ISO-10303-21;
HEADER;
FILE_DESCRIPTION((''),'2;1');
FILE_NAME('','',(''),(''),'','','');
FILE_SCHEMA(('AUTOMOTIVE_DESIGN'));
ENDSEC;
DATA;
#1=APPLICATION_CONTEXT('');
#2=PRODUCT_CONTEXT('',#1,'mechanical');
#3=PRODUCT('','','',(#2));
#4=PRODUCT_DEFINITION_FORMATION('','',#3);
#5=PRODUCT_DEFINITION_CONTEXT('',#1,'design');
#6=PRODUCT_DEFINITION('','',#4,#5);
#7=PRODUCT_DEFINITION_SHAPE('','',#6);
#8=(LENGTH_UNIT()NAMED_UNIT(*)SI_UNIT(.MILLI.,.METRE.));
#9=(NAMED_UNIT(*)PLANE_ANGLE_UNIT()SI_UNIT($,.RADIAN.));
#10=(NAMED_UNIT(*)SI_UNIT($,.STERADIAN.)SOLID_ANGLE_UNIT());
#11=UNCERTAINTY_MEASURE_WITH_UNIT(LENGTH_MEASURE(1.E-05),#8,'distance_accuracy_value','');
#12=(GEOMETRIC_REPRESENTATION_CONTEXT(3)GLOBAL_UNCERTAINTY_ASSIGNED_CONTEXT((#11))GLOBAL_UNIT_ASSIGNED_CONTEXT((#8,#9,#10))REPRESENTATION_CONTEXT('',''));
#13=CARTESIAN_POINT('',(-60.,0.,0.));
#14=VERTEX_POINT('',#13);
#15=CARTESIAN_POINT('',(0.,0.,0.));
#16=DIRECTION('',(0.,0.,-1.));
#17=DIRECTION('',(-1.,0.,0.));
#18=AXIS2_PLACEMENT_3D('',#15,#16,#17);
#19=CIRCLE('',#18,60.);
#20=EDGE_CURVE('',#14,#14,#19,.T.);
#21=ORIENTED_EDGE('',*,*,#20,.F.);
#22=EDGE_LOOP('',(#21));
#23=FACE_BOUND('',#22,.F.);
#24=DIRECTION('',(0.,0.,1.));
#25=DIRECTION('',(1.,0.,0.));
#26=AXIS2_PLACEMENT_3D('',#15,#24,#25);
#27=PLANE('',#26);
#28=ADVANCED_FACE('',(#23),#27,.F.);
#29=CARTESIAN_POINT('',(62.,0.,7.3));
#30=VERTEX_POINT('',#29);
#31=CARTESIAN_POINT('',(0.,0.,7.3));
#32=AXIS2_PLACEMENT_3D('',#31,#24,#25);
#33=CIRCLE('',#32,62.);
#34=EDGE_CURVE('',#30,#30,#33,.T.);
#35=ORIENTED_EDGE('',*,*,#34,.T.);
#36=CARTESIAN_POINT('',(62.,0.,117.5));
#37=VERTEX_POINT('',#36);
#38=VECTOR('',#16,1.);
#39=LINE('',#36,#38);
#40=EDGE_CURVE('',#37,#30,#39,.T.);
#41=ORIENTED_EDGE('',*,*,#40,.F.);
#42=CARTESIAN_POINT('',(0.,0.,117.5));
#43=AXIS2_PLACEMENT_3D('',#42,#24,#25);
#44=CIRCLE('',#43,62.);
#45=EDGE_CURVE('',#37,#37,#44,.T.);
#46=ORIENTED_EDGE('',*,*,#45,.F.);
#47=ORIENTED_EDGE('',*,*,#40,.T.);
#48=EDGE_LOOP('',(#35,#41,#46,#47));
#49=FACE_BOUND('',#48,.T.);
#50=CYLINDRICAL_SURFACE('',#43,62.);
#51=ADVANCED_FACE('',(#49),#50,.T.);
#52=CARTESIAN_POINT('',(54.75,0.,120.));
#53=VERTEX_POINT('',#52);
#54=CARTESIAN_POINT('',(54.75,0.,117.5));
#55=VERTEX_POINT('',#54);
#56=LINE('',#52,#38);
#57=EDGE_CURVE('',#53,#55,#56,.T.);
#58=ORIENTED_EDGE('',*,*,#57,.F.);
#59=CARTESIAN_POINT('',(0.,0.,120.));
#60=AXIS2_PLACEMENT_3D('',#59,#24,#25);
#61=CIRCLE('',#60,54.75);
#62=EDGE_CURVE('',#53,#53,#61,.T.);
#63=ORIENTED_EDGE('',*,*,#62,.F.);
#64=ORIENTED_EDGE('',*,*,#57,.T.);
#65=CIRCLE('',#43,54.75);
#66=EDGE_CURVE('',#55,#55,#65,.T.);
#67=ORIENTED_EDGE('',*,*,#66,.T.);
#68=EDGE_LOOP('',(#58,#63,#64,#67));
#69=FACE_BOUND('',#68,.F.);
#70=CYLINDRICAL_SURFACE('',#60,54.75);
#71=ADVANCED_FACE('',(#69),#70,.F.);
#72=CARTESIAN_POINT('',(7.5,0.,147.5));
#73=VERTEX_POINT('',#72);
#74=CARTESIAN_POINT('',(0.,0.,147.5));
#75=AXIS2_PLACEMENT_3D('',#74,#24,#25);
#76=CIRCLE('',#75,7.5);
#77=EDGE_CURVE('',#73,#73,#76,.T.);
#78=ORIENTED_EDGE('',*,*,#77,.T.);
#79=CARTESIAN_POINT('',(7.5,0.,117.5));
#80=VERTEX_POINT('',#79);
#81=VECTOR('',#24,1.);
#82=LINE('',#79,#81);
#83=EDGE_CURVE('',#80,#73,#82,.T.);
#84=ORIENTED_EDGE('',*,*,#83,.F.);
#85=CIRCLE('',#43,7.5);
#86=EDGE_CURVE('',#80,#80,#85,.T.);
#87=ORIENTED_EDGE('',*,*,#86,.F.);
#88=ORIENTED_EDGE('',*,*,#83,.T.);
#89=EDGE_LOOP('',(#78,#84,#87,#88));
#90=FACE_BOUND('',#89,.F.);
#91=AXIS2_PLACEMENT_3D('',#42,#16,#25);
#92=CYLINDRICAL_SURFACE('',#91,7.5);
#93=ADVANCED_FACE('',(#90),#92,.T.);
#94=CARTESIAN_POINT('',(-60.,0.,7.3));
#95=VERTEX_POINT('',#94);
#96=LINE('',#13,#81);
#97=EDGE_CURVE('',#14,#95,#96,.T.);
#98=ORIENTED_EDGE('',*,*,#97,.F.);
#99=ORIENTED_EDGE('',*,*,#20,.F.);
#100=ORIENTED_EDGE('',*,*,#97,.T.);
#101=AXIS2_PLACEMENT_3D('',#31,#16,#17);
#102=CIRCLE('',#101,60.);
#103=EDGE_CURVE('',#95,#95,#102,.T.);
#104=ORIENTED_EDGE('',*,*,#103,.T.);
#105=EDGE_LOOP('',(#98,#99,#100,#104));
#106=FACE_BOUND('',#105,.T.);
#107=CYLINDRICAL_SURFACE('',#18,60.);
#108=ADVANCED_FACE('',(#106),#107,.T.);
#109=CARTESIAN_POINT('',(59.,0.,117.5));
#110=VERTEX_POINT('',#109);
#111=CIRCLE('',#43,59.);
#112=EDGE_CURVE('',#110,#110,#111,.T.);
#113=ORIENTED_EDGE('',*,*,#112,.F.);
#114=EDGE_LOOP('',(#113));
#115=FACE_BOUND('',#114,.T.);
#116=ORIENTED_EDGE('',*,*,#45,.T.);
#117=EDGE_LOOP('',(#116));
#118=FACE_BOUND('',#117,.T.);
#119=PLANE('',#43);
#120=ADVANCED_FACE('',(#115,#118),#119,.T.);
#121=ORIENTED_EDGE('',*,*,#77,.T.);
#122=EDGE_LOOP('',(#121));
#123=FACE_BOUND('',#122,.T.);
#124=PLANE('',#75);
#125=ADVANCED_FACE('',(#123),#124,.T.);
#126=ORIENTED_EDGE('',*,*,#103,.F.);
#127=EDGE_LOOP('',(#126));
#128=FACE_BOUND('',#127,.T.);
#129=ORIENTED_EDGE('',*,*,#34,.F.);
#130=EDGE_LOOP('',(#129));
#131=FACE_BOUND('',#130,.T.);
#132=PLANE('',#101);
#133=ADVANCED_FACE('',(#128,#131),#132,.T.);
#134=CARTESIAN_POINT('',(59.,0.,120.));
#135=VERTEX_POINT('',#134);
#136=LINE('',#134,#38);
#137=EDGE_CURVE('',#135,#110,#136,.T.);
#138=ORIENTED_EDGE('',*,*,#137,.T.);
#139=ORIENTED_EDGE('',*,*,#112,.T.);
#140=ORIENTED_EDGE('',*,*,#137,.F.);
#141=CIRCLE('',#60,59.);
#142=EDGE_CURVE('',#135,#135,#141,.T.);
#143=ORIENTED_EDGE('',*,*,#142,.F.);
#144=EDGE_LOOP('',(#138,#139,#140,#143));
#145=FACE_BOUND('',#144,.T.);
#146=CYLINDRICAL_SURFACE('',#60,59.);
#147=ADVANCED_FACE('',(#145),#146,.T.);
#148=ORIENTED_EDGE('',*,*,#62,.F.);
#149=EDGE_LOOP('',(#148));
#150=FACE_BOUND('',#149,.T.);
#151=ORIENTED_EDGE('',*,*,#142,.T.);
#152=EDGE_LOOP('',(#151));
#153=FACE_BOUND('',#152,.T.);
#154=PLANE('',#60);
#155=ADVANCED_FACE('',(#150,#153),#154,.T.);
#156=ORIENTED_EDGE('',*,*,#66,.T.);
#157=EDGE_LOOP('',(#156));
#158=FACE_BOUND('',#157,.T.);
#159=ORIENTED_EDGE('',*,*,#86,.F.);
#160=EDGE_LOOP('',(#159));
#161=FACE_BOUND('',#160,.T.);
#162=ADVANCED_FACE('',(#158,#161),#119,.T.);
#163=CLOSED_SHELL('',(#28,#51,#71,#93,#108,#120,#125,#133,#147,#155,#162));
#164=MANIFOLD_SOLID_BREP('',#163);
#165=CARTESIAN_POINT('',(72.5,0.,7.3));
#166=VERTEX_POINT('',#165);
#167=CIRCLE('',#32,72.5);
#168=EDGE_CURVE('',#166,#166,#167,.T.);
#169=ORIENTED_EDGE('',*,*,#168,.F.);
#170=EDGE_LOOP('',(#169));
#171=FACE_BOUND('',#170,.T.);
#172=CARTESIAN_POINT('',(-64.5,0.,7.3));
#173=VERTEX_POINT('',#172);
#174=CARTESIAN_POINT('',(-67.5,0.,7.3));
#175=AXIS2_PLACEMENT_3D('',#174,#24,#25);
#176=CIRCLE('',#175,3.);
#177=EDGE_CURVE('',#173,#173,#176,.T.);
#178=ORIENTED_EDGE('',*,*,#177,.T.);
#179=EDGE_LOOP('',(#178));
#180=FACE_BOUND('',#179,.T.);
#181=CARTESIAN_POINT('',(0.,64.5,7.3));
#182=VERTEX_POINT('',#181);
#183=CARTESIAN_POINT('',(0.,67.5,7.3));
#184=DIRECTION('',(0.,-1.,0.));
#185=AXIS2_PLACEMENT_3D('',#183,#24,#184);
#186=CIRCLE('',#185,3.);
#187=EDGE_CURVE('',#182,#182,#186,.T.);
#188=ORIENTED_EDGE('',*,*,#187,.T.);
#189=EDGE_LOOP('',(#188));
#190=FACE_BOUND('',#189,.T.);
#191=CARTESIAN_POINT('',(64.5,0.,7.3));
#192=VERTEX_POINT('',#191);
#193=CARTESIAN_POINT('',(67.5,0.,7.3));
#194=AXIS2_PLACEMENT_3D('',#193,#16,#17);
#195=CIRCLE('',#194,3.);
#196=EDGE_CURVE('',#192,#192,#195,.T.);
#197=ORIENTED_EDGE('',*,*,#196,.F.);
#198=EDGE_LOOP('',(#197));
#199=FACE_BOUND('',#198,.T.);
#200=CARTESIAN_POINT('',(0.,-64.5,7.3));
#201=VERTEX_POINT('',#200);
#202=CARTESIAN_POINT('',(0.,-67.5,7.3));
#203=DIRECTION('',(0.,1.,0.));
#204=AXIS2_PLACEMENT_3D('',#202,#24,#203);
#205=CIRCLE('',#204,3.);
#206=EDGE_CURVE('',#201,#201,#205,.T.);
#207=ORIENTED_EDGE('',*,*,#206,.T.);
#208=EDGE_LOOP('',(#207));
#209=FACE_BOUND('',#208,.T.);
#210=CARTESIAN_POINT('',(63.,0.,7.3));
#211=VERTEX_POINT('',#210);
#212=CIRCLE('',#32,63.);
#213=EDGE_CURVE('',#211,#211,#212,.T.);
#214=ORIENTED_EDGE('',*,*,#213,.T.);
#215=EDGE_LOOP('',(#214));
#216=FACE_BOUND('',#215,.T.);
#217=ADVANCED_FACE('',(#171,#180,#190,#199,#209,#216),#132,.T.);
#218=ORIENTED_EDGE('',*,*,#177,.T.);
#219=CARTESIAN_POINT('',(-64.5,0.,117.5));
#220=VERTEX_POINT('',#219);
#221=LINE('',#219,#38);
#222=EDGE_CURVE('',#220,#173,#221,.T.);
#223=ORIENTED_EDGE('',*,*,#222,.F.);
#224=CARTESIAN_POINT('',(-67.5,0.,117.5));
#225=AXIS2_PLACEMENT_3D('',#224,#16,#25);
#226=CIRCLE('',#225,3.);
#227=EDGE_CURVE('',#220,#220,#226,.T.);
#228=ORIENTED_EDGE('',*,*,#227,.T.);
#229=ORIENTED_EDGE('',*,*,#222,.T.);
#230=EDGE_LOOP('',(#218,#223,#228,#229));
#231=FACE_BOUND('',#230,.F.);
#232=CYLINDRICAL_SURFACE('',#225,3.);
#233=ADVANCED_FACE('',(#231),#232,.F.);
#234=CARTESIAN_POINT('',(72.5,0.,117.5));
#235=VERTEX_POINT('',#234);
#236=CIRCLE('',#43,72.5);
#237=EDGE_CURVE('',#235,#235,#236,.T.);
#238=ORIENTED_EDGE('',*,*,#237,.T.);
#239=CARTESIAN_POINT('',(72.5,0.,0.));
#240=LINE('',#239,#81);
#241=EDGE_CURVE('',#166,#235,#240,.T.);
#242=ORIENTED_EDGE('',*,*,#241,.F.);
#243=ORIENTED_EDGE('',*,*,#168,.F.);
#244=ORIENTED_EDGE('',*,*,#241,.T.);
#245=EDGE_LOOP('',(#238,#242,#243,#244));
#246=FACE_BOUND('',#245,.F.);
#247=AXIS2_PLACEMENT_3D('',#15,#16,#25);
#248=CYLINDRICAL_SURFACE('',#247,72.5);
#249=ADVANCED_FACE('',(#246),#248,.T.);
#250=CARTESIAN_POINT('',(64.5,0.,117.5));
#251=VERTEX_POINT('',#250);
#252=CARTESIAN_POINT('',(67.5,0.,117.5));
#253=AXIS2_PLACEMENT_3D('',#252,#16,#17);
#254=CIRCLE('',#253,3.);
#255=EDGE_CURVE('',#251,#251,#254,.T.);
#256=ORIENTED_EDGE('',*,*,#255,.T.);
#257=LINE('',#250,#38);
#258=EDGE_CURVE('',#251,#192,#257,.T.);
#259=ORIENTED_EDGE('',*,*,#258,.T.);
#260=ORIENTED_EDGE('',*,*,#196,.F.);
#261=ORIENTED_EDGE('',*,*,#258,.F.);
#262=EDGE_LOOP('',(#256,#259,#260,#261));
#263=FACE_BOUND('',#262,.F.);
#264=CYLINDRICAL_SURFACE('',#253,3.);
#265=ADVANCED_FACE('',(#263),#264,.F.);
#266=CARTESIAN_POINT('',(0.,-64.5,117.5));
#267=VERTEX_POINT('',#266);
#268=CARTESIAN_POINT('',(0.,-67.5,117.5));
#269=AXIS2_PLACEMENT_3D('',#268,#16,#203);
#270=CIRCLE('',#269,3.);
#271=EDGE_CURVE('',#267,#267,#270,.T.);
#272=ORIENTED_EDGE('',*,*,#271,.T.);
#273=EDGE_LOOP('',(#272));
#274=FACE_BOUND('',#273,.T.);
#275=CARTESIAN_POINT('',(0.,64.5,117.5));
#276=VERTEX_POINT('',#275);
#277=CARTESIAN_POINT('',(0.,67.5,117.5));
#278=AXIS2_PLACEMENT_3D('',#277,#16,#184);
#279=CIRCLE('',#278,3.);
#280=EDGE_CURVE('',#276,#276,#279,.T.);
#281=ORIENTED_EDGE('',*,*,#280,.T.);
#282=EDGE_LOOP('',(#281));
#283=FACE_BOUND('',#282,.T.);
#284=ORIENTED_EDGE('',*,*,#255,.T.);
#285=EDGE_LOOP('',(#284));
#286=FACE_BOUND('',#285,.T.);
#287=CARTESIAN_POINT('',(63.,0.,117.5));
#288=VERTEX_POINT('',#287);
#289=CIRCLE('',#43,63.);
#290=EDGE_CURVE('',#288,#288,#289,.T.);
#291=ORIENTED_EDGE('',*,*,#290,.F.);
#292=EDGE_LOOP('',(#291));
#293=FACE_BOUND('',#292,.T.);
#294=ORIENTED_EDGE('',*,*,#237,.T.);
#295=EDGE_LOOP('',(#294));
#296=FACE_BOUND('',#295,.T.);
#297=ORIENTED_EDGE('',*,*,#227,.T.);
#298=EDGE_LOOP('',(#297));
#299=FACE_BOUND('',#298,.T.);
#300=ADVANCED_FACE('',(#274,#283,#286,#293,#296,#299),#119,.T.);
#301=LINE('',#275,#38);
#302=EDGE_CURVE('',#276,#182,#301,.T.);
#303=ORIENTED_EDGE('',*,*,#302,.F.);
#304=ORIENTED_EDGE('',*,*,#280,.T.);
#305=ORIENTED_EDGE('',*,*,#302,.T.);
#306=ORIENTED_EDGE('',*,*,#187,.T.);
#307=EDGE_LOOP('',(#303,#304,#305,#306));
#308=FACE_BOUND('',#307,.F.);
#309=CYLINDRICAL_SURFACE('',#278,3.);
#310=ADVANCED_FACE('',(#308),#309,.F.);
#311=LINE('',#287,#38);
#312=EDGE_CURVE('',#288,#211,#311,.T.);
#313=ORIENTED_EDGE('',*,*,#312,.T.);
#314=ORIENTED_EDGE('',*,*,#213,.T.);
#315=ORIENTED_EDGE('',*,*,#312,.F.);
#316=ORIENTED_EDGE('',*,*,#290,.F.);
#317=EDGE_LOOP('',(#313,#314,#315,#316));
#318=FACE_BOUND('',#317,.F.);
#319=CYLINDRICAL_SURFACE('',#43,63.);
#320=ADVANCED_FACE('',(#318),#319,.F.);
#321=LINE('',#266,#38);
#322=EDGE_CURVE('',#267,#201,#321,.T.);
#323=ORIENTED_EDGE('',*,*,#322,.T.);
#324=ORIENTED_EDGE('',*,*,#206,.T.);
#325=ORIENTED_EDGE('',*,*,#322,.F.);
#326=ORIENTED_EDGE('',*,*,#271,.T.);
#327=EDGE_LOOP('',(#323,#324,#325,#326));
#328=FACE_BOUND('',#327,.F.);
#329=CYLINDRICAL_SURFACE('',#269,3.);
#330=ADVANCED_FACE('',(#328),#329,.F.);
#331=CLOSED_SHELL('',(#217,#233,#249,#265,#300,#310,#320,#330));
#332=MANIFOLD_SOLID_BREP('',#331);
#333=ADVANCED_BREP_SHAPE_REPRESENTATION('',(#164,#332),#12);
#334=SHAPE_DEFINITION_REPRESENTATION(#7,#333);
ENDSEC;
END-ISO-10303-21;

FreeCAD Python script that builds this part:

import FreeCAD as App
import Part
import Sketcher
from FreeCAD import Vector
Q = App.Units.Quantity

doc = App.newDocument("Part")
body = doc.addObject("PartDesign::Body", "Body")
body.AllowCompound = True

sketch1 = body.newObject("Sketcher::SketchObject", "Sketch")
sketch1.AttachmentSupport = (doc.getObject("XY_Plane"), [""])
sketch1.MapMode = "FlatFace"
sketch1.addGeometry(Part.Circle(Vector(0, 0, 0), Vector(0, 0, 1), 72), False)
sketch1.addConstraint(Sketcher.Constraint("Coincident", 0, 3, -1, 1))
sketch1.addConstraint(Sketcher.Constraint("Diameter", 0, Q("145 mm")))
pad1 = body.newObject("PartDesign::Pad", "Pad")
pad1.Profile = sketch1
pad1.Length = 120

sketch2 = body.newObject("Sketcher::SketchObject", "Sketch001")
sketch2.AttachmentSupport = (doc.getObject("XY_Plane"), [""])
sketch2.MapMode = "FlatFace"
sketch2.AttachmentOffset = App.Placement(Vector(0, 0, 120), App.Rotation())
sketch2.addGeometry(Part.Circle(Vector(0, 0, 0), Vector(0, 0, 1), 55), False)
sketch2.addGeometry(Part.Circle(Vector(0, 0, 0), Vector(0, 0, 1), 72), False)
sketch2.addGeometry(Part.Circle(Vector(0, 0, 0), Vector(0, 0, 1), 59), False)
sketch2.addConstraint(Sketcher.Constraint("Coincident", 0, 3, -1, 1))
sketch2.addConstraint(Sketcher.Constraint("Coincident", 1, 3, -1, 1))
sketch2.addConstraint(Sketcher.Constraint("Coincident", 2, 3, -1, 1))
sketch2.addConstraint(Sketcher.Constraint("Diameter", 2, Q("118 mm")))
sketch2.addConstraint(Sketcher.Constraint("Diameter", 0, Q("109.5 mm")))
sketch2.addConstraint(Sketcher.Constraint("Diameter", 1, Q("145 mm")))
pocket1 = body.newObject("PartDesign::Pocket", "Pocket")
pocket1.Profile = sketch2
pocket1.Length = 2.5

sketch3 = body.newObject("Sketcher::SketchObject", "Sketch002")
sketch3.AttachmentSupport = (doc.getObject("XY_Plane"), [""])
sketch3.MapMode = "FlatFace"
sketch3.AttachmentOffset = App.Placement(Vector(0, 0, 117.5), App.Rotation())
sketch3.addGeometry(Part.Circle(Vector(0, 0, 0), Vector(0, 0, 1), 8), False)
sketch3.addConstraint(Sketcher.Constraint("Coincident", 0, 3, -1, 1))
sketch3.addConstraint(Sketcher.Constraint("Diameter", 0, Q("15 mm")))
pad2 = body.newObject("PartDesign::Pad", "Pad001")
pad2.Profile = sketch3
pad2.Length = 30

sketch4 = body.newObject("Sketcher::SketchObject", "Sketch003")
sketch4.AttachmentSupport = (doc.getObject("XY_Plane"), [""])
sketch4.MapMode = "FlatFace"
sketch4.AttachmentOffset = App.Placement(Vector(0, 0, 117.5), App.Rotation())
sketch4.addGeometry(Part.Circle(Vector(0, 67.5, 0), Vector(0, 0, 1), 3), False)
sketch4.addConstraint(Sketcher.Constraint("PointOnObject", 0, 3, -2))
sketch4.addConstraint(Sketcher.Constraint("Diameter", 0, Q("6 mm")))
sketch4.addConstraint(Sketcher.Constraint("DistanceY", -1, 1, 0, 3, Q("67.5 mm")))
doc.recompute()
hole = body.newObject("PartDesign::Hole", "Hole")
hole.Profile = sketch4
hole.ThreadType = "None"
hole.Diameter = 6
hole.DepthType = "ThroughAll"
doc.recompute()

polarpattern = body.newObject("PartDesign::PolarPattern", "PolarPattern")
polarpattern.Originals = [hole]
polarpattern.Axis = (doc.getObject("Z_Axis"), [""])
polarpattern.Angle = 360
polarpattern.Occurrences = 4
body.Tip = polarpattern

sketch5 = body.newObject("Sketcher::SketchObject", "Sketch004")
sketch5.AttachmentSupport = (doc.getObject("XY_Plane"), [""])
sketch5.MapMode = "FlatFace"
sketch5.AttachmentOffset = App.Placement(Vector(0, 0, 117.5), App.Rotation())
sketch5.addGeometry(Part.Circle(Vector(0, 0, 0), Vector(0, 0, 1), 63), False)
sketch5.addGeometry(Part.Circle(Vector(0, 0, 0), Vector(0, 0, 1), 62), False)
sketch5.addConstraint(Sketcher.Constraint("Coincident", 0, 3, -1, 1))
sketch5.addConstraint(Sketcher.Constraint("Coincident", 1, 3, -1, 1))
sketch5.addConstraint(Sketcher.Constraint("Diameter", 1, Q("124 mm")))
sketch5.addConstraint(Sketcher.Constraint("Diameter", 0, Q("126 mm")))
pocket2 = body.newObject("PartDesign::Pocket", "Pocket001")
pocket2.Profile = sketch5
pocket2.Type = "ThroughAll"

sketch6 = body.newObject("Sketcher::SketchObject", "Sketch005")
sketch6.AttachmentSupport = (doc.getObject("XY_Plane"), [""])
sketch6.MapMode = "FlatFace"
sketch6.addGeometry(Part.Circle(Vector(0, 0, 0), Vector(0, 0, 1), 72.5), False)
sketch6.addGeometry(Part.Circle(Vector(0, -67.5, 0), Vector(0, 0, 1), 3), False)
sketch6.addGeometry(Part.Circle(Vector(67.5, 0, 0), Vector(0, 0, 1), 3), False)
sketch6.addGeometry(Part.Circle(Vector(-67.5, 0, 0), Vector(0, 0, 1), 3), False)
sketch6.addGeometry(Part.Circle(Vector(0, 67.5, 0), Vector(0, 0, 1), 3), False)
sketch6.addGeometry(Part.Circle(Vector(0, 0, 0), Vector(0, 0, 1), 60), False)
sketch6.addConstraint(Sketcher.Constraint("Coincident", 0, 3, -1, 1))
sketch6.addConstraint(Sketcher.Constraint("Coincident", 5, 3, -1, 1))
sketch6.addConstraint(Sketcher.Constraint("Equal", 1, 2))
sketch6.addConstraint(Sketcher.Constraint("Equal", 2, 3))
sketch6.addConstraint(Sketcher.Constraint("Equal", 3, 4))
sketch6.addConstraint(Sketcher.Constraint("Symmetric", 2, 3, 3, 3, -1, 1))
sketch6.addConstraint(Sketcher.Constraint("Symmetric", 1, 3, 4, 3, -1, 1))
sketch6.addConstraint(Sketcher.Constraint("PointOnObject", 1, 3, -2))
sketch6.addConstraint(Sketcher.Constraint("PointOnObject", 2, 3, -1))
sketch6.addConstraint(Sketcher.Constraint("Diameter", 5, Q("120 mm")))
sketch6.addConstraint(Sketcher.Constraint("Diameter", 0, Q("145 mm")))
sketch6.addConstraint(Sketcher.Constraint("Diameter", 1, Q("6 mm")))
sketch6.addConstraint(Sketcher.Constraint("DistanceX", 3, 3, 2, 3, Q("135 mm")))
sketch6.addConstraint(Sketcher.Constraint("DistanceY", 1, 3, 4, 3, Q("135 mm")))
pocket3 = body.newObject("PartDesign::Pocket", "Pocket002")
pocket3.Profile = sketch6
pocket3.Length = 7.3
pocket3.Reversed = True

doc.recompute()
